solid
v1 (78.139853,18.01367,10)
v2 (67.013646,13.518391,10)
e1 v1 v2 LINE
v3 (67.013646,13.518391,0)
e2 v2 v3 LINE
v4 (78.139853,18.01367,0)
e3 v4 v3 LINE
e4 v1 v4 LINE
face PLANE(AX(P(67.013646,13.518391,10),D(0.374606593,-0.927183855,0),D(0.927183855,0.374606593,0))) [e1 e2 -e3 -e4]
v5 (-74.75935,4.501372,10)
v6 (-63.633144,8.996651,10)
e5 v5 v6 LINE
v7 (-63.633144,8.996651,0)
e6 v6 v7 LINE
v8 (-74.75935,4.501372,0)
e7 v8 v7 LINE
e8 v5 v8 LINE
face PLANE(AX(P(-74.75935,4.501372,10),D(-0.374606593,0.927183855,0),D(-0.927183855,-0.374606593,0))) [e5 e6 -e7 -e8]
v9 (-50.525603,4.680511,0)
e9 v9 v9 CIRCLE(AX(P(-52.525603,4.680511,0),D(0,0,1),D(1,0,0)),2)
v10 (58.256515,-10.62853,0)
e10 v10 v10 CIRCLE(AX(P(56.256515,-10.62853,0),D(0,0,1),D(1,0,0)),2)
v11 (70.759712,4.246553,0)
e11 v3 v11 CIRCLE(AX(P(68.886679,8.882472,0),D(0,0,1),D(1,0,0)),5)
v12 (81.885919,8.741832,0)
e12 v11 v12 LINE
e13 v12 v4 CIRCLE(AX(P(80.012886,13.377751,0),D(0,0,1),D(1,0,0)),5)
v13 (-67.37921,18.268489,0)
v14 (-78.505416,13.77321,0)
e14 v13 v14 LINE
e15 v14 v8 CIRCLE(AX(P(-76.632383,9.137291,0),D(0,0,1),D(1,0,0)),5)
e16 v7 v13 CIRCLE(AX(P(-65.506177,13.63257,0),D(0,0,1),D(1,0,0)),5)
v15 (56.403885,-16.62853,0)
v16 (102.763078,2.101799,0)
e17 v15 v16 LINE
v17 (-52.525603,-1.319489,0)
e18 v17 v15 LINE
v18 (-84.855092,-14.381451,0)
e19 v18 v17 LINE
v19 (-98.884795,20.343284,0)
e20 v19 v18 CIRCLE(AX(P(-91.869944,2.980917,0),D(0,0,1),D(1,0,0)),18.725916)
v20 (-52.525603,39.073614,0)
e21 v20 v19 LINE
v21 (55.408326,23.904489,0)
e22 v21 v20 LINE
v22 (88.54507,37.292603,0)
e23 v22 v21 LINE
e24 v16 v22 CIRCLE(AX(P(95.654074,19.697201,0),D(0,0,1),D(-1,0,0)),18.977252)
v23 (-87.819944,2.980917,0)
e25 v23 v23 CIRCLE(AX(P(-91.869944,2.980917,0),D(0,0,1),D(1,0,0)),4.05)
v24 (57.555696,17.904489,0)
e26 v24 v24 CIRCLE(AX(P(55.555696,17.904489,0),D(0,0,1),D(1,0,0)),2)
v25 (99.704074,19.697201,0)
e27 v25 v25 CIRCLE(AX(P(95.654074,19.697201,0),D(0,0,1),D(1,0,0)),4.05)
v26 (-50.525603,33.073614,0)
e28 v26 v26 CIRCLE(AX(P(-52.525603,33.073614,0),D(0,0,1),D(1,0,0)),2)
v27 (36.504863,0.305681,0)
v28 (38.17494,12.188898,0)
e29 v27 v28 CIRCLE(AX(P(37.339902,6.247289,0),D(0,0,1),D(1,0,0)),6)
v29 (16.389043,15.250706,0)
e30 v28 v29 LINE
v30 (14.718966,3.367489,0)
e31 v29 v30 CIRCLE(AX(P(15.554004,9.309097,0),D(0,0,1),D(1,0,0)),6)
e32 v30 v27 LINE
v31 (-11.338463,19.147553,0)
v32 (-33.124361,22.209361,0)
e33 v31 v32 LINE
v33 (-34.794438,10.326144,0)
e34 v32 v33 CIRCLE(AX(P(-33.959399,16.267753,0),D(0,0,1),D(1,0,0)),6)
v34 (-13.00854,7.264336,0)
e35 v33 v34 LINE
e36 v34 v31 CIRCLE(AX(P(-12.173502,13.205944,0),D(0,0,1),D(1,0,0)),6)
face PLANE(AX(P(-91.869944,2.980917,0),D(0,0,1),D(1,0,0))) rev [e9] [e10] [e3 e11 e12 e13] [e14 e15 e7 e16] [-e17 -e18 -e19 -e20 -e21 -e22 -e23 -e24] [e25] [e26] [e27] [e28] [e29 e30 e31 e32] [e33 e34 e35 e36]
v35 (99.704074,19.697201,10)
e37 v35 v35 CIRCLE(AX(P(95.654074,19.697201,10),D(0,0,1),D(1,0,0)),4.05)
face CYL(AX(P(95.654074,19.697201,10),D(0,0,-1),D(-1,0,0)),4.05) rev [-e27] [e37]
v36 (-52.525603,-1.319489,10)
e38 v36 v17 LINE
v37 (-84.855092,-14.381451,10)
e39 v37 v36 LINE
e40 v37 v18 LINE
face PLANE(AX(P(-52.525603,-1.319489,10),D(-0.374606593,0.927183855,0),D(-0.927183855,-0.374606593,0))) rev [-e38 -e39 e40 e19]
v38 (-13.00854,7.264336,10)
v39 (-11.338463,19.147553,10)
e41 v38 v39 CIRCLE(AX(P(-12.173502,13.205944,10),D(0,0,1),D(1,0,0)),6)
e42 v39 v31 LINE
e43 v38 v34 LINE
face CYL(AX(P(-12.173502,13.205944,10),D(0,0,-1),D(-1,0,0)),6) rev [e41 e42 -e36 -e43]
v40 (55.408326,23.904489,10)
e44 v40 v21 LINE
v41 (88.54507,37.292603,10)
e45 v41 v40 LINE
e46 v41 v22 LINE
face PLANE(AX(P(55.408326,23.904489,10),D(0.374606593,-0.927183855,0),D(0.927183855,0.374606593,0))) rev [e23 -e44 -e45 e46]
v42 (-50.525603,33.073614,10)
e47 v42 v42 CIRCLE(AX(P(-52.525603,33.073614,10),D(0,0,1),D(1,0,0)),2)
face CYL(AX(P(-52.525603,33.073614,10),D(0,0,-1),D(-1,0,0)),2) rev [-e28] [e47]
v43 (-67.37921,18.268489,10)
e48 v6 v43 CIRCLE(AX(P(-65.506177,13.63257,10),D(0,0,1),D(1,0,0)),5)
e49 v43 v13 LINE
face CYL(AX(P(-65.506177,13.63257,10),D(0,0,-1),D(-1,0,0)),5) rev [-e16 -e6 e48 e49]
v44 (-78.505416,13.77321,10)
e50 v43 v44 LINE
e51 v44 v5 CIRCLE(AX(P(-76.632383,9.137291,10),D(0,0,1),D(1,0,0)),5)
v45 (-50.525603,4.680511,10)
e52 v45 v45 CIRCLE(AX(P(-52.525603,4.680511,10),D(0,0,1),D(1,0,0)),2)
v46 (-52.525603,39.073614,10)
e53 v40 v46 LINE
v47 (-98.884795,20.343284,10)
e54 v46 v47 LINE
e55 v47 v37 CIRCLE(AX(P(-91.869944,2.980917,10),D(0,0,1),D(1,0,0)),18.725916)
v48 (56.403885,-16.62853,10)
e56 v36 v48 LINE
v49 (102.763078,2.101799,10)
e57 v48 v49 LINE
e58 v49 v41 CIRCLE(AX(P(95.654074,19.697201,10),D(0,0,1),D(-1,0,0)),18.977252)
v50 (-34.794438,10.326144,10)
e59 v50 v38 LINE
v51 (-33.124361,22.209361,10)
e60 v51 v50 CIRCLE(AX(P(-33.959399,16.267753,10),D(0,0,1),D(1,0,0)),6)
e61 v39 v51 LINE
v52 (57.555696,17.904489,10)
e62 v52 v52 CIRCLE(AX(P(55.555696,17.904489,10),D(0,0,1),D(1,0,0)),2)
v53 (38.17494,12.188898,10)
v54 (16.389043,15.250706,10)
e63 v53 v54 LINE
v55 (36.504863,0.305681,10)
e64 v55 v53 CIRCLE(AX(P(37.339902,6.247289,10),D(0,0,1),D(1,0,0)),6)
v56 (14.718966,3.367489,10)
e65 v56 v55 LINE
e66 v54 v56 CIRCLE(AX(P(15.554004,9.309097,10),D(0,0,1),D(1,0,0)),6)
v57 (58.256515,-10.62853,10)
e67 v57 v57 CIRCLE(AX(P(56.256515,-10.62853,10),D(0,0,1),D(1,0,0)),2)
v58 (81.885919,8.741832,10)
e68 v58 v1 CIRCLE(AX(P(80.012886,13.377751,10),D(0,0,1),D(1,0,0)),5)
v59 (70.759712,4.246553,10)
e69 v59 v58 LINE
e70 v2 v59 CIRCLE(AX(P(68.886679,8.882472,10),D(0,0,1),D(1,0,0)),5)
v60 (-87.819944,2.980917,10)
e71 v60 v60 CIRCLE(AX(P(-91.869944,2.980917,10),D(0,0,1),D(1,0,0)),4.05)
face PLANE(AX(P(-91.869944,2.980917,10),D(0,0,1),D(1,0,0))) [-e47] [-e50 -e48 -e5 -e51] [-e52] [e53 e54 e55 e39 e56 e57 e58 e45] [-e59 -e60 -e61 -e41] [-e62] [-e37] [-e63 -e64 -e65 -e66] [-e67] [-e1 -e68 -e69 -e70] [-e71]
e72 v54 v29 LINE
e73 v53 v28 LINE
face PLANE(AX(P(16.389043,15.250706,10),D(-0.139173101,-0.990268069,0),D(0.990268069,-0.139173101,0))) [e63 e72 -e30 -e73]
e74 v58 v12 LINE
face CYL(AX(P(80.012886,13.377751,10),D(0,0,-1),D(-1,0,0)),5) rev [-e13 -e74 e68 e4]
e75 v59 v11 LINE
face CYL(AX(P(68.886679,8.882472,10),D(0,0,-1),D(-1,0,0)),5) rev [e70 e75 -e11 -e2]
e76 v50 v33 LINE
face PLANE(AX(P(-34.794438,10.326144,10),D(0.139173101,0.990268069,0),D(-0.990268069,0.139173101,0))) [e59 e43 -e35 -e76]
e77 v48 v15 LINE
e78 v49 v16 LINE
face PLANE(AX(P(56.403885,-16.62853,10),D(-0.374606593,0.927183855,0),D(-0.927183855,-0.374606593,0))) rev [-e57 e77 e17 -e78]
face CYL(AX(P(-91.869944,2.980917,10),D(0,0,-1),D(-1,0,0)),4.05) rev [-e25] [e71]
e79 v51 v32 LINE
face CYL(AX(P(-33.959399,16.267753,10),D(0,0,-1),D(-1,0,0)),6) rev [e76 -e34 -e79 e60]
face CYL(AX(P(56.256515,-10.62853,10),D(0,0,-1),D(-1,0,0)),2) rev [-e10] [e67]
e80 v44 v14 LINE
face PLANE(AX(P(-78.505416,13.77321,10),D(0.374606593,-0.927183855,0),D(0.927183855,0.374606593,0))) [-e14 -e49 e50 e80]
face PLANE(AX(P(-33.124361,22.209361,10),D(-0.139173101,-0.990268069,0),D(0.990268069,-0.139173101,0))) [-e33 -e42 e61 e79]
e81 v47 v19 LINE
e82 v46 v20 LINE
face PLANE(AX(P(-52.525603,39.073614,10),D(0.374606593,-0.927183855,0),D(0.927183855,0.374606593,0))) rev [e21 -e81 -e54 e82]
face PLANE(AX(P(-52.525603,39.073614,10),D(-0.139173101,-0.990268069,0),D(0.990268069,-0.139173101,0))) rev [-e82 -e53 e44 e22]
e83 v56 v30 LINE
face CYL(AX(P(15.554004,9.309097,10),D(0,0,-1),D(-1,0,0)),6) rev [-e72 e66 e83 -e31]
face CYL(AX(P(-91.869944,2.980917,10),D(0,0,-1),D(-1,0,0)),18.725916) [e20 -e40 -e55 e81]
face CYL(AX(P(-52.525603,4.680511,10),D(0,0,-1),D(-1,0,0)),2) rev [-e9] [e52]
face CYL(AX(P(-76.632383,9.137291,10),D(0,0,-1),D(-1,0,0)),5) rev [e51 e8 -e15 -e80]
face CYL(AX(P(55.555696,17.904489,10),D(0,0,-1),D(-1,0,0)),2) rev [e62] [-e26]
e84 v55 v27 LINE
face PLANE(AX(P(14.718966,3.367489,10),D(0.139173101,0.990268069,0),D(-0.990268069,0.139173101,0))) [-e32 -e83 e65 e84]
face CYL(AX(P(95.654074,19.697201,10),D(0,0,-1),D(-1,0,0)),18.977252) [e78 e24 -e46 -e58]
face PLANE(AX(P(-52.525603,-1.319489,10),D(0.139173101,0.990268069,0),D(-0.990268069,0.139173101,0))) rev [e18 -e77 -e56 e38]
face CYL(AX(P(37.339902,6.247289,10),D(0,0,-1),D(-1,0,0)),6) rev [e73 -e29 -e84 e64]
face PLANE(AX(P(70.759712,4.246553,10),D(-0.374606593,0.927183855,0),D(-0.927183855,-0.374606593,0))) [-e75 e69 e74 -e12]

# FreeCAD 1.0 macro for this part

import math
import FreeCAD as App
import Part
import Sketcher

V = App.Vector
Q = App.Units.Quantity

doc = App.newDocument("Part")
body = doc.addObject("PartDesign::Body", "Body")

# Sketch on XY plane
sketch1 = doc.addObject("Sketcher::SketchObject", "Sketch")
body.addObject(sketch1)
sketch1.AttachmentSupport = (doc.XY_Plane, [""])
sketch1.MapMode = "FlatFace"
sketch1.addGeometry([
    Part.LineSegment(V(55.4, 23.9, 0), V(-52.5, 39.1, 0)),  # 0
    Part.LineSegment(V(-52.5, 39.1, 0), V(-98.9, 20.3, 0)),  # 1
    Part.ArcOfCircle(Part.Circle(V(-91.9, 3, 0), V(0, 0, 1), 18.7), math.radians(112), math.radians(292)),  # 2
    Part.LineSegment(V(-84.9, -14.4, 0), V(-52.5, -1.3, 0)),  # 3
    Part.LineSegment(V(-52.5, -1.3, 0), V(56.4, -16.6, 0)),  # 4
    Part.LineSegment(V(56.4, -16.6, 0), V(102.8, 2.1, 0)),  # 5
    Part.ArcOfCircle(Part.Circle(V(95.7, 19.7, 0), V(0, 0, 1), 19), math.radians(-68), math.radians(112)),  # 6
    Part.LineSegment(V(88.5, 37.3, 0), V(55.4, 23.9, 0)),  # 7
    Part.Circle(V(56.3, -10.6, 0), V(0, 0, 1), 2),  # 8
    Part.LineSegment(V(67, 13.5, 0), V(78.1, 18, 0)),  # 9
    Part.ArcOfCircle(Part.Circle(V(80, 13.4, 0), V(0, 0, 1), 5), math.radians(-68), math.radians(112)),  # 10
    Part.LineSegment(V(81.9, 8.7, 0), V(70.8, 4.2, 0)),  # 11
    Part.ArcOfCircle(Part.Circle(V(68.9, 8.9, 0), V(0, 0, 1), 5), math.radians(112), math.radians(292)),  # 12
    Part.LineSegment(V(16.4, 15.3, 0), V(38.2, 12.2, 0)),  # 13
    Part.ArcOfCircle(Part.Circle(V(37.3, 6.2, 0), V(0, 0, 1), 6), math.radians(-98), math.radians(82)),  # 14
    Part.LineSegment(V(36.5, 0.3, 0), V(14.7, 3.4, 0)),  # 15
    Part.ArcOfCircle(Part.Circle(V(15.6, 9.3, 0), V(0, 0, 1), 6), math.radians(82), math.radians(262)),  # 16
    Part.Circle(V(-52.5, 4.7, 0), V(0, 0, 1), 2),  # 17
    Part.Circle(V(-91.9, 3, 0), V(0, 0, 1), 4),  # 18
    Part.Circle(V(95.7, 19.7, 0), V(0, 0, 1), 4),  # 19
    Part.Circle(V(55.6, 17.9, 0), V(0, 0, 1), 2),  # 20
    Part.LineSegment(V(-33.1, 22.2, 0), V(-11.3, 19.1, 0)),  # 21
    Part.ArcOfCircle(Part.Circle(V(-12.2, 13.2, 0), V(0, 0, 1), 6), math.radians(-98), math.radians(82)),  # 22
    Part.LineSegment(V(-13, 7.3, 0), V(-34.8, 10.3, 0)),  # 23
    Part.ArcOfCircle(Part.Circle(V(-34, 16.3, 0), V(0, 0, 1), 6), math.radians(82), math.radians(262)),  # 24
    Part.LineSegment(V(-78.5, 13.8, 0), V(-67.4, 18.3, 0)),  # 25
    Part.ArcOfCircle(Part.Circle(V(-65.5, 13.6, 0), V(0, 0, 1), 5), math.radians(-68), math.radians(112)),  # 26
    Part.LineSegment(V(-63.6, 9, 0), V(-74.8, 4.5, 0)),  # 27
    Part.ArcOfCircle(Part.Circle(V(-76.6, 9.1, 0), V(0, 0, 1), 5), math.radians(112), math.radians(292)),  # 28
    Part.Circle(V(-52.5, 33.1, 0), V(0, 0, 1), 2),  # 29
], False)
sketch1.addConstraint([
    Sketcher.Constraint("Coincident", 0, 2, 1, 1),
    Sketcher.Constraint("Tangent", 1, 2, 2, 1),
    Sketcher.Constraint("Tangent", 2, 2, 3, 1),
    Sketcher.Constraint("Coincident", 3, 2, 4, 1),
    Sketcher.Constraint("Coincident", 4, 2, 5, 1),
    Sketcher.Constraint("Tangent", 5, 2, 6, 1),
    Sketcher.Constraint("Tangent", 6, 2, 7, 1),
    Sketcher.Constraint("Coincident", 7, 2, 0, 1),
    Sketcher.Constraint("Tangent", 9, 2, 10, 2),
    Sketcher.Constraint("Tangent", 10, 1, 11, 1),
    Sketcher.Constraint("Tangent", 11, 2, 12, 2),
    Sketcher.Constraint("Tangent", 12, 1, 9, 1),
    Sketcher.Constraint("Tangent", 13, 2, 14, 2),
    Sketcher.Constraint("Tangent", 14, 1, 15, 1),
    Sketcher.Constraint("Tangent", 15, 2, 16, 2),
    Sketcher.Constraint("Tangent", 16, 1, 13, 1),
    Sketcher.Constraint("Tangent", 21, 2, 22, 2),
    Sketcher.Constraint("Tangent", 22, 1, 23, 1),
    Sketcher.Constraint("Tangent", 23, 2, 24, 2),
    Sketcher.Constraint("Tangent", 24, 1, 21, 1),
    Sketcher.Constraint("Tangent", 25, 2, 26, 2),
    Sketcher.Constraint("Tangent", 26, 1, 27, 1),
    Sketcher.Constraint("Tangent", 27, 2, 28, 2),
    Sketcher.Constraint("Tangent", 28, 1, 25, 1),
    Sketcher.Constraint("Coincident", 18, 3, 2, 3),
    Sketcher.Constraint("Coincident", 19, 3, 6, 3),
    Sketcher.Constraint("Equal", 10, 12),
    Sketcher.Constraint("Equal", 14, 16),
    Sketcher.Constraint("Equal", 8, 17),
    Sketcher.Constraint("Equal", 18, 19),
    Sketcher.Constraint("Equal", 17, 20),
    Sketcher.Constraint("Equal", 16, 22),
    Sketcher.Constraint("Equal", 22, 24),
    Sketcher.Constraint("Equal", 12, 26),
    Sketcher.Constraint("Equal", 26, 28),
    Sketcher.Constraint("Equal", 20, 29),
    Sketcher.Constraint("Parallel", 1, 3),
    Sketcher.Constraint("Parallel", 0, 4),
    Sketcher.Constraint("Parallel", 3, 5),
    Sketcher.Constraint("Parallel", 5, 7),
    Sketcher.Constraint("Parallel", 7, 9),
    Sketcher.Constraint("Parallel", 4, 13),
    Sketcher.Constraint("Parallel", 15, 21),
    Sketcher.Constraint("Parallel", 11, 25),
    Sketcher.Constraint("Vertical", 17, 3, 29, 3),
    Sketcher.Constraint("Vertical", 29, 3, 0, 2),
    Sketcher.Constraint("Vertical", 0, 2, 3, 2),
    Sketcher.Constraint("Equal", 1, 5),
    Sketcher.Constraint("Equal", 15, 21),
    Sketcher.Constraint("Equal", 11, 25),
    Sketcher.Constraint("Diameter", 8, Q("4 mm")),
    Sketcher.Constraint("Radius", 10, Q("5 mm")),
    Sketcher.Constraint("Radius", 14, Q("6 mm")),
    Sketcher.Constraint("Diameter", 18, Q("8.1 mm")),
    Sketcher.Constraint("Angle", 0, Q("172 deg")),
    Sketcher.Constraint("Angle", 1, Q("-158 deg")),
    Sketcher.Constraint("Distance", 1, Q("50 mm")),
    Sketcher.Constraint("Distance", 4, Q("110 mm")),
    Sketcher.Constraint("Distance", 9, Q("12 mm")),
    Sketcher.Constraint("Distance", 13, Q("22 mm")),
    Sketcher.Constraint("DistanceY", 29, 3, 0, 2, Q("6 mm")),
    Sketcher.Constraint("DistanceY", 3, 2, 17, 3, Q("6 mm")),
    Sketcher.Constraint("DistanceY", 4, 2, 8, 3, Q("6 mm")),
    Sketcher.Constraint("DistanceY", 20, 3, 7, 2, Q("6 mm")),
    Sketcher.Constraint("Radius", 2, Q("18.725916 mm")),
    Sketcher.Constraint("Radius", 6, Q("18.977252 mm")),
    Sketcher.Constraint("DistanceX", 4, 2, 10, 3, Q("23.609001 mm")),
    Sketcher.Constraint("DistanceY", -1, 1, 6, 3, Q("19.697201 mm")),
    Sketcher.Constraint("DistanceX", -1, 1, 14, 3, Q("37.339902 mm")),
    Sketcher.Constraint("DistanceX", 22, 3, -1, 1, Q("12.173502 mm")),
    Sketcher.Constraint("DistanceY", 14, 3, 20, 3, Q("11.6572 mm")),
    Sketcher.Constraint("DistanceX", 17, 3, 22, 3, Q("40.352101 mm")),
    Sketcher.Constraint("DistanceY", 12, 1, 20, 3, Q("4.386098 mm")),
    Sketcher.Constraint("DistanceY", -1, 1, 26, 3, Q("13.63257 mm")),
    Sketcher.Constraint("DistanceY", -1, 1, 24, 1, Q("22.209361 mm")),
    Sketcher.Constraint("DistanceX", 25, 2, -1, 1, Q("67.37921 mm")),
    Sketcher.Constraint("DistanceX", 8, 3, 6, 3, Q("39.397559 mm")),
    Sketcher.Constraint("DistanceX", 20, 3, 10, 3, Q("24.45719 mm")),
])
pad1 = doc.addObject("PartDesign::Pad", "Pad")
body.addObject(pad1)
pad1.Profile = sketch1
pad1.Length = 10

doc.recompute()
